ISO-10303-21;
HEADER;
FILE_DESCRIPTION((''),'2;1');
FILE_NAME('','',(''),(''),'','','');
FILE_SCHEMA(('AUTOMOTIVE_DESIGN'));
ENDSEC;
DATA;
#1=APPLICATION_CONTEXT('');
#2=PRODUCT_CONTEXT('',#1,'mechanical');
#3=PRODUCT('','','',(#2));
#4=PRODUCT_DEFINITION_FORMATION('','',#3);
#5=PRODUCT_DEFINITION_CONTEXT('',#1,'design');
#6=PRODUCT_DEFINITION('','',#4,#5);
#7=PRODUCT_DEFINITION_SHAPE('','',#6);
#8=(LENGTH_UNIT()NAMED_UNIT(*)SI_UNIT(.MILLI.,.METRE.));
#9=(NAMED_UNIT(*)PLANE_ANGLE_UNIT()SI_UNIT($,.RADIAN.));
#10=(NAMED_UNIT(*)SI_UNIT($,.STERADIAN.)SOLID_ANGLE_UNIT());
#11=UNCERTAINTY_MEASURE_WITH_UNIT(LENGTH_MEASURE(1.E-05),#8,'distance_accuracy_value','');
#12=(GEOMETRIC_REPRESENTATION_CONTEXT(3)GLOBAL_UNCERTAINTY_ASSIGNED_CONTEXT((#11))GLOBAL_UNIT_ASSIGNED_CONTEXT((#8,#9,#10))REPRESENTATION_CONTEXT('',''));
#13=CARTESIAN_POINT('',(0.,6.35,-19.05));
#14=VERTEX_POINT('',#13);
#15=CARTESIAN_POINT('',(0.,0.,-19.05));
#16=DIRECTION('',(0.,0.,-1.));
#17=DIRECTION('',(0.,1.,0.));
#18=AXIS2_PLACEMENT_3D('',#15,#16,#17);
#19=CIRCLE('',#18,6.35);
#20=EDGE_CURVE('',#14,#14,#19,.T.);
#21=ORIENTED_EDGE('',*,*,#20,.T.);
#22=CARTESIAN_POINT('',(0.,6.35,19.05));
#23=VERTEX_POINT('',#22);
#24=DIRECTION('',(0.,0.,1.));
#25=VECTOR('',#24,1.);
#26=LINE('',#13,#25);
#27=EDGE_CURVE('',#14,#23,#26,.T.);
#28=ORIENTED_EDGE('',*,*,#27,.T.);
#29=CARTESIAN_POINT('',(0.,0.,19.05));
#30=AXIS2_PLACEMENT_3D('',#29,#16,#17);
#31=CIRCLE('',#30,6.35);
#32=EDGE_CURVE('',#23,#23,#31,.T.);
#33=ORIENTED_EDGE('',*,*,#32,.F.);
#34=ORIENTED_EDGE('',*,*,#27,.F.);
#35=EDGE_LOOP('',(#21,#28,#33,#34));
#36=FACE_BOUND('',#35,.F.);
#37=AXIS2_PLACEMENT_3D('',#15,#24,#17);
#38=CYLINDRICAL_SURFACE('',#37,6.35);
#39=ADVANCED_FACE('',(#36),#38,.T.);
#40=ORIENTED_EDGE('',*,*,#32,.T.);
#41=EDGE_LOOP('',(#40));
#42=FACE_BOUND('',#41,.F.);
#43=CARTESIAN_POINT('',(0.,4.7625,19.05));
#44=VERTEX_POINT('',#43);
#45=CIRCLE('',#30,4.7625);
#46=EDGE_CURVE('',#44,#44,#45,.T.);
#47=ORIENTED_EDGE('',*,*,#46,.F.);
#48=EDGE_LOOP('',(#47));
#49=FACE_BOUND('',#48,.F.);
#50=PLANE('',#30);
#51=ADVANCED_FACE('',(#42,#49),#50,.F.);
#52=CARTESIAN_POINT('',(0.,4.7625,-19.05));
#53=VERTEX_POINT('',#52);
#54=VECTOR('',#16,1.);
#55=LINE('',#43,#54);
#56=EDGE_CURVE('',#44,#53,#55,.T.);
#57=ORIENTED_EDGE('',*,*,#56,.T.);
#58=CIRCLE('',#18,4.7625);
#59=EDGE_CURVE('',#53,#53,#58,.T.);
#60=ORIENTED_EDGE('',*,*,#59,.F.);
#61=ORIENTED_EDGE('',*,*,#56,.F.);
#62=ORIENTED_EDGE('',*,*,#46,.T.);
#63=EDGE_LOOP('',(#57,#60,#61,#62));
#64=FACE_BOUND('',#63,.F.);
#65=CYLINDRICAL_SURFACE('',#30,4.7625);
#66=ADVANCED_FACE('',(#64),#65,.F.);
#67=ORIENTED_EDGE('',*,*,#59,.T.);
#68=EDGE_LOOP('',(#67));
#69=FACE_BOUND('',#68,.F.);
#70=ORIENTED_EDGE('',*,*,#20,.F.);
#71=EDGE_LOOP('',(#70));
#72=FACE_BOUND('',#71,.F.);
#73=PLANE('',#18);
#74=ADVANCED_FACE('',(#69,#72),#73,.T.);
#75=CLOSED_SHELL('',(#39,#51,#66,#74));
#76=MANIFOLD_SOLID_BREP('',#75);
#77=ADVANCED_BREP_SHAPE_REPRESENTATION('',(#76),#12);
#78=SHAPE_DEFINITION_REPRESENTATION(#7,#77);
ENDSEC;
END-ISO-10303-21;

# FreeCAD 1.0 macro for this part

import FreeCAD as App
import Part
import Sketcher
from FreeCAD import Vector
Q = App.Units.Quantity

doc = App.newDocument("Part")
body = doc.addObject("PartDesign::Body", "Body")

# Sketch on YZ plane
sketch1 = body.newObject("Sketcher::SketchObject", "Sketch")
sketch1.AttachmentSupport = (doc.getObject("YZ_Plane"), [""])
sketch1.MapMode = "FlatFace"
sketch1.addGeometry([
    Part.LineSegment(Vector(6.3, 19.1, 0), Vector(4.8, 19.1, 0)),
    Part.LineSegment(Vector(4.8, 19.1, 0), Vector(4.8, -19.1, 0)),
    Part.LineSegment(Vector(4.8, -19.1, 0), Vector(6.3, -19.1, 0)),
    Part.LineSegment(Vector(6.3, -19.1, 0), Vector(6.3, 19.1, 0)),
], False)
sketch1.addConstraint([
    Sketcher.Constraint("Coincident", 0, 2, 1, 1),
    Sketcher.Constraint("Coincident", 1, 2, 2, 1),
    Sketcher.Constraint("Coincident", 2, 2, 3, 1),
    Sketcher.Constraint("Coincident", 3, 2, 0, 1),
    Sketcher.Constraint("Horizontal", 0),
    Sketcher.Constraint("Vertical", 1),
    Sketcher.Constraint("Horizontal", 2),
    Sketcher.Constraint("Vertical", 3),
    Sketcher.Constraint("DistanceY", 1, 2, 1, 1, Q("1.5 in")),
    Sketcher.Constraint("DistanceX", 0, 2, 0, 1, Q("0.0625 in")),
    Sketcher.Constraint("DistanceY", -1, 1, 0, 2, Q("0.75 in")),
    Sketcher.Constraint("DistanceX", -1, 1, 2, 2, Q("0.25 in")),
])
revolution = body.newObject("PartDesign::Revolution", "Revolution")
revolution.Profile = sketch1
revolution.ReferenceAxis = (sketch1, ["V_Axis"])
revolution.Angle = 360

doc.recompute()
